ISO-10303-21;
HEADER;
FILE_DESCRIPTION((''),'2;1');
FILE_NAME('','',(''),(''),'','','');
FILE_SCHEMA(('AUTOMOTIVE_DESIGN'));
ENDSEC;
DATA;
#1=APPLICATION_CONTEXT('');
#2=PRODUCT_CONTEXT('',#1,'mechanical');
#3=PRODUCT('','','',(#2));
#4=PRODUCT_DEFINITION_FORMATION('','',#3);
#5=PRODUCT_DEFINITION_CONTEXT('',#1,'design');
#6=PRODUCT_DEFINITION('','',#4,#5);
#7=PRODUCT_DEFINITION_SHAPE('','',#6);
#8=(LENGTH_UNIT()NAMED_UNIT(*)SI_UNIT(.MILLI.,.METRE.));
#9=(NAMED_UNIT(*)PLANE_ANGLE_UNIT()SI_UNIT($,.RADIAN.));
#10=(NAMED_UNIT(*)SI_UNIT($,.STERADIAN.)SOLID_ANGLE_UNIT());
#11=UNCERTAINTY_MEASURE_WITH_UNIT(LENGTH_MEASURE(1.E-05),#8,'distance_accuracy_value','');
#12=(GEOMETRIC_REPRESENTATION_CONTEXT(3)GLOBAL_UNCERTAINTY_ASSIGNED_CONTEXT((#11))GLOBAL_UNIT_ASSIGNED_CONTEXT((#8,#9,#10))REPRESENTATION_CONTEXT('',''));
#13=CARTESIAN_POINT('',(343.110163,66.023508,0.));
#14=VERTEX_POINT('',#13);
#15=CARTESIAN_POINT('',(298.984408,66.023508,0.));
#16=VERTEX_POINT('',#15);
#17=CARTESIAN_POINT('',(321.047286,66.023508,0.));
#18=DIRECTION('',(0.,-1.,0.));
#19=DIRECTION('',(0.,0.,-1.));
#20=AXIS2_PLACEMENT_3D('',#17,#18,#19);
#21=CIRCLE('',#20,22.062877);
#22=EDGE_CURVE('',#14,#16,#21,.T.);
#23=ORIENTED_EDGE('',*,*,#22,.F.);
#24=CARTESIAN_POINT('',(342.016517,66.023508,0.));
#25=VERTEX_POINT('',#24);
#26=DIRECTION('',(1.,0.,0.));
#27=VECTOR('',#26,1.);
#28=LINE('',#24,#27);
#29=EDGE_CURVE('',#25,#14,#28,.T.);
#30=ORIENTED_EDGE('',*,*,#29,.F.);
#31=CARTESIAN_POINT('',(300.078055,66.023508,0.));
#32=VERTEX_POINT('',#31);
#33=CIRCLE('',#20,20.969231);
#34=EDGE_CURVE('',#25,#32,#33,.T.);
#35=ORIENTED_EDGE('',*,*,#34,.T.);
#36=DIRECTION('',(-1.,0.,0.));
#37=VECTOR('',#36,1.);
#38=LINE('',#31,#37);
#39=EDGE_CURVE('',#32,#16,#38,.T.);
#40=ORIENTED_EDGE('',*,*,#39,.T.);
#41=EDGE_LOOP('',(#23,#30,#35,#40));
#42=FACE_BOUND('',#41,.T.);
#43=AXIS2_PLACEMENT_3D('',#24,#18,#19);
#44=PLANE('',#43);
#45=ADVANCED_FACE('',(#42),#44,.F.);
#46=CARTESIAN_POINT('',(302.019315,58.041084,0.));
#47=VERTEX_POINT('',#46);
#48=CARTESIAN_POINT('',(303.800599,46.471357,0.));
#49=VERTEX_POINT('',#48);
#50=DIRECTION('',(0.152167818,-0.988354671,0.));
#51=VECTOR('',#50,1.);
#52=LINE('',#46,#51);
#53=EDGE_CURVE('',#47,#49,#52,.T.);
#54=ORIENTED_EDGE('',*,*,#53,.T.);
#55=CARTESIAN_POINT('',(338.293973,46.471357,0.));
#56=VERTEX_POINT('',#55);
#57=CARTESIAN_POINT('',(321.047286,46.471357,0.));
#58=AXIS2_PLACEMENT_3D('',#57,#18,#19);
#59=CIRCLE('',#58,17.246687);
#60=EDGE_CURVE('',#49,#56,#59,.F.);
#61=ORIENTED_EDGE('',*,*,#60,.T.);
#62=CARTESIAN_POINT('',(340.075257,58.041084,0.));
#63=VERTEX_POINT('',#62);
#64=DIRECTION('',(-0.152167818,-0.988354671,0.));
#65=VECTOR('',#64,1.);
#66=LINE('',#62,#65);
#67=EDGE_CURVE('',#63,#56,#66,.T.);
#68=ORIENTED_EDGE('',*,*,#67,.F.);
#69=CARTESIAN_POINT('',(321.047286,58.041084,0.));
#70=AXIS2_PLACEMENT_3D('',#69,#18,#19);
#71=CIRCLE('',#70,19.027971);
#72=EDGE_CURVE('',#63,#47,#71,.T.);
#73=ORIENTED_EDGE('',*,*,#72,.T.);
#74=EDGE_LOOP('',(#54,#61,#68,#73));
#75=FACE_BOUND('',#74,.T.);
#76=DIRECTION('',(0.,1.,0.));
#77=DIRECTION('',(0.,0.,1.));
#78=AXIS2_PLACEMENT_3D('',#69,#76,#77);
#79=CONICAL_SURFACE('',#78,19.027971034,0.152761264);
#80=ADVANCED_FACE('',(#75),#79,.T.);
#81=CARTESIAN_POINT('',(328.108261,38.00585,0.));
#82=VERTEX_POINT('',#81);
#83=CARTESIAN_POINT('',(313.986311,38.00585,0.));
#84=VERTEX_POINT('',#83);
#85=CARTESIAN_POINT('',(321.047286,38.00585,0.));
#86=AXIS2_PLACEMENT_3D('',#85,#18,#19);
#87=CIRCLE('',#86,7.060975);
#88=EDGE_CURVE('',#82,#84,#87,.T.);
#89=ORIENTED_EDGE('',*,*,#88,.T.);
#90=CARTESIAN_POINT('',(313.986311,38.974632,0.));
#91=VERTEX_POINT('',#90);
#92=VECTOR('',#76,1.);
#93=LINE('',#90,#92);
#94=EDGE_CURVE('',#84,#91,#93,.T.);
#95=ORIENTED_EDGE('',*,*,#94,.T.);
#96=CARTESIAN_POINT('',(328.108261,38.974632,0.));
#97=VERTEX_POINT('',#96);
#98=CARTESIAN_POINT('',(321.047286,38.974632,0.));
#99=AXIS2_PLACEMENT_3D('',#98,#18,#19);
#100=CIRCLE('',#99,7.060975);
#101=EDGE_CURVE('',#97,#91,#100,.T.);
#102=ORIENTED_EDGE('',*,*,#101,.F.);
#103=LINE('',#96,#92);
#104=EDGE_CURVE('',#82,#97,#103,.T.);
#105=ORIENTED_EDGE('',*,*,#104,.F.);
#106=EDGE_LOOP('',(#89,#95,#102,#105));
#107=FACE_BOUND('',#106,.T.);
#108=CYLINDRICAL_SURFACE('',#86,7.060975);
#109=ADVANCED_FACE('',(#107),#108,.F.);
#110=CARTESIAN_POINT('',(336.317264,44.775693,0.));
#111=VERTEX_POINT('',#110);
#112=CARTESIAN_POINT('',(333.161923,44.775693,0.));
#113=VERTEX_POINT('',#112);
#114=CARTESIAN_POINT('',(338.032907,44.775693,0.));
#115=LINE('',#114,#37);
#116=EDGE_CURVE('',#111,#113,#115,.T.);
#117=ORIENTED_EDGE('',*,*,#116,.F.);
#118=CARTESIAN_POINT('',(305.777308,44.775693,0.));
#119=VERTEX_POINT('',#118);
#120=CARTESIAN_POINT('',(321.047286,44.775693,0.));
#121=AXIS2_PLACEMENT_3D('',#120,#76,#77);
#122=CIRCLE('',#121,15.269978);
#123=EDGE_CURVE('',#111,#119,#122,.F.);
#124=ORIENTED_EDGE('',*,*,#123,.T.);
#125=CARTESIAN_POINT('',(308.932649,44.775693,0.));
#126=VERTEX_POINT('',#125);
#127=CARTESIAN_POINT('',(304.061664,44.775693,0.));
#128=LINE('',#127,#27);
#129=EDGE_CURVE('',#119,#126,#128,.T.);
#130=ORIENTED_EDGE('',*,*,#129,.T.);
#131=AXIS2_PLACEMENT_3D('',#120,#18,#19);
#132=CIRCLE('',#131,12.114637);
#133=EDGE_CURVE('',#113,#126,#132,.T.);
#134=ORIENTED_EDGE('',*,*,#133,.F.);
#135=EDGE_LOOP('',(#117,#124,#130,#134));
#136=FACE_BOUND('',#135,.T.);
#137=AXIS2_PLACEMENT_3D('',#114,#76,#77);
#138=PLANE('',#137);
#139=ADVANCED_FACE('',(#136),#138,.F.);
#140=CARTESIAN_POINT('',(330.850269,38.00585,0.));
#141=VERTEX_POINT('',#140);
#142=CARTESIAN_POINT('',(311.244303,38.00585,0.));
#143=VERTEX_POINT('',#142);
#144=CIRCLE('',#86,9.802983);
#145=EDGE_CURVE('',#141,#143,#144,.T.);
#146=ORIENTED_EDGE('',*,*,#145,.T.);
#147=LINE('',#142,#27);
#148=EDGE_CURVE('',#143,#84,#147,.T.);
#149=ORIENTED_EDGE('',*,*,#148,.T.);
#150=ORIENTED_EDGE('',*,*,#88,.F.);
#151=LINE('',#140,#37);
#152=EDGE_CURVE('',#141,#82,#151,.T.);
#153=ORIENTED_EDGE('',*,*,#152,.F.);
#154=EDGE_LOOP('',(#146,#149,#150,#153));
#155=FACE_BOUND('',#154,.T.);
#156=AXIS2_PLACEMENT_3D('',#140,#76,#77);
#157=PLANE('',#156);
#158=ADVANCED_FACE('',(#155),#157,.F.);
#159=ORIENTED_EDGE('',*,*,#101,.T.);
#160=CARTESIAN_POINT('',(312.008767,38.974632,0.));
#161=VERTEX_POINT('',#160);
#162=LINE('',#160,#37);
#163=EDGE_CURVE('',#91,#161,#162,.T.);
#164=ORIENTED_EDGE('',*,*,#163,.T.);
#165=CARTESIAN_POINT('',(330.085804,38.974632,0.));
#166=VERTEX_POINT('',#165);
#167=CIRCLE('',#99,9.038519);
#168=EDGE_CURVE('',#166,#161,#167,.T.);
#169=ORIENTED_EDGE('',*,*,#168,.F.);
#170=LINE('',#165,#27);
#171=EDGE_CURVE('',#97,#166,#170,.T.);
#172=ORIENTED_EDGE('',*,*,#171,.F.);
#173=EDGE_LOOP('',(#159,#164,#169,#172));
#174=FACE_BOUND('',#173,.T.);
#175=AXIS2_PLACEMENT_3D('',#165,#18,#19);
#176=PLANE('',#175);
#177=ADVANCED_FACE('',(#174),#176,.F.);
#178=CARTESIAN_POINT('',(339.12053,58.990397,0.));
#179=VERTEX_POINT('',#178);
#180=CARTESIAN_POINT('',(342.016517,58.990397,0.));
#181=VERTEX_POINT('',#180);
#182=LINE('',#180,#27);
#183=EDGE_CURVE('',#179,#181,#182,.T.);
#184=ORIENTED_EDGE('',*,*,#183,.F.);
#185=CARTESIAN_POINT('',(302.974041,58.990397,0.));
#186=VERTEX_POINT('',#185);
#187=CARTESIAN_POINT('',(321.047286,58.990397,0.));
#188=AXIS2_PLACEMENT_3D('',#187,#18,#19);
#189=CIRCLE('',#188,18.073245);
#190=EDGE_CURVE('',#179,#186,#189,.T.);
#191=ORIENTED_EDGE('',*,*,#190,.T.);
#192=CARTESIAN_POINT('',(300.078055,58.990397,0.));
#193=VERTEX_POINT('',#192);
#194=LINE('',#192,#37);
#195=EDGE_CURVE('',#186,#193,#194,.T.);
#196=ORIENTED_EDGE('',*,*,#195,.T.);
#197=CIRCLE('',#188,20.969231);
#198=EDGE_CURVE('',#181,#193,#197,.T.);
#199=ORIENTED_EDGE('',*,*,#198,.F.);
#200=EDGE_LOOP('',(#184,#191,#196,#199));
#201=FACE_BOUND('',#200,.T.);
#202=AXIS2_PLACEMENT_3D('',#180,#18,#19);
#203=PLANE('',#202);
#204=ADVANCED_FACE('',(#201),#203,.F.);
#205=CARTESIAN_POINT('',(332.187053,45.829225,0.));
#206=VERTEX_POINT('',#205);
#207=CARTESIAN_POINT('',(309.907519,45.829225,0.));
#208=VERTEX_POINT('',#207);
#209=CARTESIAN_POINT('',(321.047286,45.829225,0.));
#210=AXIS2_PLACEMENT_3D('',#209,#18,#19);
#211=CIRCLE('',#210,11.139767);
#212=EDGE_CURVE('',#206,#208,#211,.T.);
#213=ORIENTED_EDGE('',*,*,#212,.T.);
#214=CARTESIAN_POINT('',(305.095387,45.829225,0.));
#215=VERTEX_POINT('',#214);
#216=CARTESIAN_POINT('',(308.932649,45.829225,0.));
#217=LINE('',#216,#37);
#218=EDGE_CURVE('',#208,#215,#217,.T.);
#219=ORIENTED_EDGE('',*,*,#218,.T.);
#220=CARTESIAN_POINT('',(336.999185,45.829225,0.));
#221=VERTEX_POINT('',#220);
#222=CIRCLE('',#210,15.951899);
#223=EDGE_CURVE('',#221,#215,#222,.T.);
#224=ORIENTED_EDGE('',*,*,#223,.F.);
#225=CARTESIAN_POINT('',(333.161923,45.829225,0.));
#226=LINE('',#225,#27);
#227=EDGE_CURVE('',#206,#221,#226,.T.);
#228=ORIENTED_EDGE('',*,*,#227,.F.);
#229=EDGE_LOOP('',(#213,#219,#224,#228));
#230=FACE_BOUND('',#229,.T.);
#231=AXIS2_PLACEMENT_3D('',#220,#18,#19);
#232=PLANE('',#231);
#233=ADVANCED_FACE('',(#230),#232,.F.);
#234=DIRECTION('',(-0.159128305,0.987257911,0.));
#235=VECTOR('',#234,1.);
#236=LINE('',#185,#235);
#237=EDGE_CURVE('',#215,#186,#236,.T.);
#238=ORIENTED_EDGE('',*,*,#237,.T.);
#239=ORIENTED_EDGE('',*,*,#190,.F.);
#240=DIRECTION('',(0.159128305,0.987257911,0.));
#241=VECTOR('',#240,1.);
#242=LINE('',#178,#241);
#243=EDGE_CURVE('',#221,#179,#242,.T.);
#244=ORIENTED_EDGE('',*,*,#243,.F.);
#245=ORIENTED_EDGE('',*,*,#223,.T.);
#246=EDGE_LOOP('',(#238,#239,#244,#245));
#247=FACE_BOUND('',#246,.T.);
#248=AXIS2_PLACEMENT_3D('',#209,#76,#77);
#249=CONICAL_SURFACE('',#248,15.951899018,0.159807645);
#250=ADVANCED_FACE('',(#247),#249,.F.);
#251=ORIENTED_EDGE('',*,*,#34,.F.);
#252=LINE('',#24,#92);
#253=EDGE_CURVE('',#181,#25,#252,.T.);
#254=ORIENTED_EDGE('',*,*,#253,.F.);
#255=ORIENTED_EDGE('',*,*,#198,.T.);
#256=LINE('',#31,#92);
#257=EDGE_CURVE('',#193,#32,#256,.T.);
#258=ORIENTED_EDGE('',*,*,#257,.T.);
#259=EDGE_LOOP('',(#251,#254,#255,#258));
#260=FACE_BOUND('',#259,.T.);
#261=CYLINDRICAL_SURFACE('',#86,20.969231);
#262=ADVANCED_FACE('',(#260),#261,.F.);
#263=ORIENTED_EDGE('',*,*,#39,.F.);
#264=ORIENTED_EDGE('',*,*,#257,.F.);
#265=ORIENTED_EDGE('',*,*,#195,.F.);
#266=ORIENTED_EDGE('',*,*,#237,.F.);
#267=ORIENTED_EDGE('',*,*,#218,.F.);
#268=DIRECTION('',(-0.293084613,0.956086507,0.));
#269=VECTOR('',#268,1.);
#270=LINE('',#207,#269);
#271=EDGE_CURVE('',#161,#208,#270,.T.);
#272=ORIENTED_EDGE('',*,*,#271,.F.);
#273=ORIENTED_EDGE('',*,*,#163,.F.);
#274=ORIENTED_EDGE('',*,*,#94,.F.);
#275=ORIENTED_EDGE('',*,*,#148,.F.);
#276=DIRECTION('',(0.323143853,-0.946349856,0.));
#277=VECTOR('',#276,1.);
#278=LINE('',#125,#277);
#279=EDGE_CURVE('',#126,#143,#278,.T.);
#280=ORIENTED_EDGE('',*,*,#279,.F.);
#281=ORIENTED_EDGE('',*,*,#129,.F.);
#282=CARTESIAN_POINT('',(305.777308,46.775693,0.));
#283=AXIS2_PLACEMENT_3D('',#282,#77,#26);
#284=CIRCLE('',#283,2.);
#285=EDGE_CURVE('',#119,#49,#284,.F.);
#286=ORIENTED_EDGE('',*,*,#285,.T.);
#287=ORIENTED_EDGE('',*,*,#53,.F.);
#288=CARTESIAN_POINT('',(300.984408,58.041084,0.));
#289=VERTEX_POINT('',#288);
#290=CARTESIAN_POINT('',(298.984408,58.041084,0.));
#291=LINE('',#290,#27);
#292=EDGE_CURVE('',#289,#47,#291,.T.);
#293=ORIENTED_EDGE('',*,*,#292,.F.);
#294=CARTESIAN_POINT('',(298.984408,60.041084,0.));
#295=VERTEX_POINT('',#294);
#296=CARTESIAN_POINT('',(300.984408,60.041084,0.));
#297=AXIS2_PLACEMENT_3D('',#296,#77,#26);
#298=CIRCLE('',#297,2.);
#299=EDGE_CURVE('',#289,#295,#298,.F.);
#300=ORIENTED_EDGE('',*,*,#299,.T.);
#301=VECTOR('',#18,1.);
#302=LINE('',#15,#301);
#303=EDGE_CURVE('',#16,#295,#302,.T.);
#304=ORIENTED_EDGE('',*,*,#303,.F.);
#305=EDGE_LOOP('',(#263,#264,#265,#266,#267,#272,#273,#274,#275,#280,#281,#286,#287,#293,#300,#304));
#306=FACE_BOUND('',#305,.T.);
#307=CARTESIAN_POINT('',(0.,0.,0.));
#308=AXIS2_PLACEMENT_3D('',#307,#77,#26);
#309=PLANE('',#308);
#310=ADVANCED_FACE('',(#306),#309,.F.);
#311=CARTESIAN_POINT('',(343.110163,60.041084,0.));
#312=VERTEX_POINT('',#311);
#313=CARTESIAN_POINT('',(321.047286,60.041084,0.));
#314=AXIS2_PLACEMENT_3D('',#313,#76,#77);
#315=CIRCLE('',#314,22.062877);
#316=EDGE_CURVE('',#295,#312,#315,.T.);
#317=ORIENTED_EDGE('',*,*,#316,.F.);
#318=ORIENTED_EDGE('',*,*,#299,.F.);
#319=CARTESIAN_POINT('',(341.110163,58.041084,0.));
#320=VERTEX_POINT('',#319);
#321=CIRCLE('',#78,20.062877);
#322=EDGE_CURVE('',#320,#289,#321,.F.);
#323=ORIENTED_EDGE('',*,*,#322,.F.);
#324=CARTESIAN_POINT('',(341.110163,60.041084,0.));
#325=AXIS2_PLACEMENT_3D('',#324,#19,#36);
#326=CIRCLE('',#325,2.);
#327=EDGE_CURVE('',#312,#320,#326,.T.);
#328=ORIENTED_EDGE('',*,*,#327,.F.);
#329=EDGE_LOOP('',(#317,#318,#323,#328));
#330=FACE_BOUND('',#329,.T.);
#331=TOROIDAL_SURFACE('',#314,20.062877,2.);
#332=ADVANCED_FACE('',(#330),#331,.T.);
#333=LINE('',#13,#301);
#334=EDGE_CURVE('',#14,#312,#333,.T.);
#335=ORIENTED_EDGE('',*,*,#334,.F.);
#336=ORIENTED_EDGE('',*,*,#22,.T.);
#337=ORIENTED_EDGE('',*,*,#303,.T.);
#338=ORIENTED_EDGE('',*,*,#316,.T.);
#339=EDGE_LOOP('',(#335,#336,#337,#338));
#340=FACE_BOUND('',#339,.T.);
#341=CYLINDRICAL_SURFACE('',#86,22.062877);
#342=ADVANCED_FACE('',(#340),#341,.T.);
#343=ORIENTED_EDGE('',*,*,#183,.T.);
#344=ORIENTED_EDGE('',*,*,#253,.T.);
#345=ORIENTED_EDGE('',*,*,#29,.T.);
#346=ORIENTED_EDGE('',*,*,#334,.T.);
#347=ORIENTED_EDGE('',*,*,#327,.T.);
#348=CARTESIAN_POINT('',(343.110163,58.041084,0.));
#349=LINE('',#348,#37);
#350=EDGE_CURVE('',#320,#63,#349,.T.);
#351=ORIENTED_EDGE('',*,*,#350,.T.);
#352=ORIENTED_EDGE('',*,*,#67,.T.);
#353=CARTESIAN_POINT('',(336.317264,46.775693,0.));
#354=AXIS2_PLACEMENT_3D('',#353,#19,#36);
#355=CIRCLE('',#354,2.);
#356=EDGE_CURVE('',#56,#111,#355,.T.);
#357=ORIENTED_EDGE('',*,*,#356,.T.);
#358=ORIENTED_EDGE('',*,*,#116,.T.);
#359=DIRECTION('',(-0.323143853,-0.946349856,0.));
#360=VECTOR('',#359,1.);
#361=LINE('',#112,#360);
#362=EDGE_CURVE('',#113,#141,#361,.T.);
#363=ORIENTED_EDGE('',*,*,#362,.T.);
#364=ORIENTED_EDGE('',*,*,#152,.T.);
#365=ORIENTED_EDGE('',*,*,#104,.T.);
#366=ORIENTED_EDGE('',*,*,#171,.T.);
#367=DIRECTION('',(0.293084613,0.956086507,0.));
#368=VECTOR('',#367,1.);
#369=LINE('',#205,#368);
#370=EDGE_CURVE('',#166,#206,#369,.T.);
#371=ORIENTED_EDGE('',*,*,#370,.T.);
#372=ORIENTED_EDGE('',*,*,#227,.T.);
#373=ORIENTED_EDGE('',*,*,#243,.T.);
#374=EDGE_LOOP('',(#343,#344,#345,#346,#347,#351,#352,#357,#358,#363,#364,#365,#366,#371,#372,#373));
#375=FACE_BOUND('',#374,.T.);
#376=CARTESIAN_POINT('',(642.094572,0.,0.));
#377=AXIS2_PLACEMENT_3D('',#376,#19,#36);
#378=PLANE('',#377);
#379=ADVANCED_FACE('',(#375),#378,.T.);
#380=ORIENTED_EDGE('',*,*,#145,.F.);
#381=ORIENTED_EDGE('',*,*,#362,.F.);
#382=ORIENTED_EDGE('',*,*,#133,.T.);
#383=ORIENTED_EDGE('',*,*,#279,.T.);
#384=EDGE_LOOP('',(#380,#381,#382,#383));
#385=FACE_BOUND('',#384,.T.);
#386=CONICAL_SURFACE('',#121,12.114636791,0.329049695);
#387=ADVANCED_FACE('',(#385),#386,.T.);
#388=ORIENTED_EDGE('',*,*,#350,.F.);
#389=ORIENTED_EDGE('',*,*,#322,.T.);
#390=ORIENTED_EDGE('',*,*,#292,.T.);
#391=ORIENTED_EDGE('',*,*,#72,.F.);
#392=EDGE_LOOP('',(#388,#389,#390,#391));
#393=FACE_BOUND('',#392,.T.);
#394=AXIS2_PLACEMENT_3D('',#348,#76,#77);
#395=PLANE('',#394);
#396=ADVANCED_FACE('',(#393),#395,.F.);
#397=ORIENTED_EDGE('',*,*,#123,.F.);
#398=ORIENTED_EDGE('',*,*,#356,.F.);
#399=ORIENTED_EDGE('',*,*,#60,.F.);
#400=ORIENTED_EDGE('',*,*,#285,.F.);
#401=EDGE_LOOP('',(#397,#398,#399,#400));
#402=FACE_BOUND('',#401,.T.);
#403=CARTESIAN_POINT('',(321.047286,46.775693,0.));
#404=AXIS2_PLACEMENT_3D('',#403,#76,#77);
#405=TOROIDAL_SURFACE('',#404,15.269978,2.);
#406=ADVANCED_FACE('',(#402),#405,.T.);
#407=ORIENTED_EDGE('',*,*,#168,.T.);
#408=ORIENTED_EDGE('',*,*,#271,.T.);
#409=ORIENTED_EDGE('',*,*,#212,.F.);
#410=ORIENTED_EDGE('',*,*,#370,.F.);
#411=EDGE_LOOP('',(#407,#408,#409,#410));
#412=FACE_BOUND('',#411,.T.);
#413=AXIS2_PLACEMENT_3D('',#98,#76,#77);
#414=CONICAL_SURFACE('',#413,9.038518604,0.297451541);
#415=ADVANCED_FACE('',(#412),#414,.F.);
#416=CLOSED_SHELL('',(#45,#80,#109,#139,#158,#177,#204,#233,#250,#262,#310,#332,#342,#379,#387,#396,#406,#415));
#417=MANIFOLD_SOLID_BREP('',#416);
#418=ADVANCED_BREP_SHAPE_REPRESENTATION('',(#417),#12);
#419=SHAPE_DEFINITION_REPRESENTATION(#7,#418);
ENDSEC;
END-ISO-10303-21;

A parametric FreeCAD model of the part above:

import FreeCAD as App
import Part
import Sketcher
from FreeCAD import Vector
Q = App.Units.Quantity


def edges_at(feature, points):
    """Names of the edges that pass closest to the given points."""
    edges = feature.Shape.Edges
    near = lambda p: min(range(len(edges)), key=lambda i: edges[i].distToShape(Part.Vertex(*p))[0])
    return sorted({f"Edge{near(p) + 1}" for p in points})


def add_polygon(sketch, points):
    """Adds a closed chain of lines whose ends are joined by coincident constraints."""
    first, n = sketch.GeometryCount, len(points)
    for a, b in zip(points, points[1:] + points[:1]):
        sketch.addGeometry(Part.LineSegment(App.Vector(*a, 0), App.Vector(*b, 0)), False)
    for i in range(n):
        sketch.addConstraint(Sketcher.Constraint("Coincident", first + i, 2, first + (i + 1) % n, 1))

doc = App.newDocument("Part")
body = doc.addObject("PartDesign::Body", "Body")

# Sketch on XY plane
sketch1 = body.newObject("Sketcher::SketchObject", "Sketch")
sketch1.AttachmentSupport = (doc.getObject("XY_Plane"), [""])
sketch1.MapMode = "FlatFace"
add_polygon(sketch1, [(299, 58), (302, 58), (304.1, 44.8), (308.9, 44.8), (311.2, 38), (314, 38), (314, 39), (312, 39), (309.9, 45.8), (305.1, 45.8), (303, 59), (300.1, 59), (300.1, 66), (299, 66)])  # lines 0-13
sketch1.addGeometry(Part.LineSegment(Vector(321, 38, 0), Vector(321, 66, 0)), True)  # axis
sketch1.addConstraint(Sketcher.Constraint("Horizontal", 0))
sketch1.addConstraint(Sketcher.Constraint("Horizontal", 2))
sketch1.addConstraint(Sketcher.Constraint("Horizontal", 4))
sketch1.addConstraint(Sketcher.Constraint("Vertical", 5))
sketch1.addConstraint(Sketcher.Constraint("Horizontal", 6))
sketch1.addConstraint(Sketcher.Constraint("Horizontal", 8))
sketch1.addConstraint(Sketcher.Constraint("Horizontal", 10))
sketch1.addConstraint(Sketcher.Constraint("Vertical", 11))
sketch1.addConstraint(Sketcher.Constraint("Horizontal", 12))
sketch1.addConstraint(Sketcher.Constraint("Vertical", 13))
sketch1.addConstraint(Sketcher.Constraint("Vertical", 14))
sketch1.addConstraint(Sketcher.Constraint("Horizontal", 4, 2, 14, 1))
sketch1.addConstraint(Sketcher.Constraint("Horizontal", 12, 2, 14, 2))
sketch1.addConstraint(Sketcher.Constraint("DistanceX", 8, 2, 8, 1, Q("4.812132 mm")))
sketch1.addConstraint(Sketcher.Constraint("DistanceY", 11, 1, 11, 2, Q("7.033111 mm")))
sketch1.addConstraint(Sketcher.Constraint("DistanceY", 14, 1, 14, 2, Q("28.017658 mm")))
sketch1.addConstraint(Sketcher.Constraint("Distance", 1, Q("13.421691 mm")))
sketch1.addConstraint(Sketcher.Constraint("Distance", 9, Q("13.331038 mm")))
sketch1.addConstraint(Sketcher.Constraint("DistanceX", 0, 1, 0, 2, Q("3.034906 mm")))
sketch1.addConstraint(Sketcher.Constraint("DistanceX", 2, 1, 2, 2, Q("4.870985 mm")))
sketch1.addConstraint(Sketcher.Constraint("DistanceX", 4, 1, 4, 2, Q("2.742008 mm")))
sketch1.addConstraint(Sketcher.Constraint("DistanceX", 6, 2, 6, 1, Q("1.977543 mm")))
sketch1.addConstraint(Sketcher.Constraint("DistanceX", 10, 2, 10, 1, Q("2.895987 mm")))
sketch1.addConstraint(Sketcher.Constraint("DistanceX", 12, 2, 12, 1, Q("1.093646 mm")))
sketch1.addConstraint(Sketcher.Constraint("DistanceY", 5, 1, 5, 2, Q("0.968783 mm")))
sketch1.addConstraint(Sketcher.Constraint("DistanceY", 13, 2, 13, 1, Q("7.982424 mm")))
sketch1.addConstraint(Sketcher.Constraint("DistanceX", -1, 1, 2, 2, Q("308.932649 mm")))
sketch1.addConstraint(Sketcher.Constraint("DistanceY", -1, 1, 3, 2, Q("38.00585 mm")))
sketch1.addConstraint(Sketcher.Constraint("DistanceX", -1, 1, 4, 2, Q("313.986311 mm")))
sketch1.addConstraint(Sketcher.Constraint("DistanceX", -1, 1, 7, 2, Q("309.907519 mm")))
sketch1.addConstraint(Sketcher.Constraint("DistanceX", -1, 1, 9, 2, Q("302.974041 mm")))
sketch1.addConstraint(Sketcher.Constraint("DistanceX", 6, 2, 14, 1, Q("9.038519 mm")))
revolution = body.newObject("PartDesign::Revolution", "Revolution")
revolution.Profile = sketch1
revolution.ReferenceAxis = (sketch1, ["Axis0"])
revolution.Angle = 180
doc.recompute()

fillet = body.newObject("PartDesign::Fillet", "Fillet")
fillet.Base = (revolution, edges_at(revolution, [(321.047, 58.041, 22.063)]))
fillet.Radius = 2
doc.recompute()

fillet2 = body.newObject("PartDesign::Fillet", "Fillet001")
fillet2.Base = (fillet, edges_at(fillet, [(321.047, 44.776, 16.986)]))
fillet2.Radius = 2

doc.recompute()
